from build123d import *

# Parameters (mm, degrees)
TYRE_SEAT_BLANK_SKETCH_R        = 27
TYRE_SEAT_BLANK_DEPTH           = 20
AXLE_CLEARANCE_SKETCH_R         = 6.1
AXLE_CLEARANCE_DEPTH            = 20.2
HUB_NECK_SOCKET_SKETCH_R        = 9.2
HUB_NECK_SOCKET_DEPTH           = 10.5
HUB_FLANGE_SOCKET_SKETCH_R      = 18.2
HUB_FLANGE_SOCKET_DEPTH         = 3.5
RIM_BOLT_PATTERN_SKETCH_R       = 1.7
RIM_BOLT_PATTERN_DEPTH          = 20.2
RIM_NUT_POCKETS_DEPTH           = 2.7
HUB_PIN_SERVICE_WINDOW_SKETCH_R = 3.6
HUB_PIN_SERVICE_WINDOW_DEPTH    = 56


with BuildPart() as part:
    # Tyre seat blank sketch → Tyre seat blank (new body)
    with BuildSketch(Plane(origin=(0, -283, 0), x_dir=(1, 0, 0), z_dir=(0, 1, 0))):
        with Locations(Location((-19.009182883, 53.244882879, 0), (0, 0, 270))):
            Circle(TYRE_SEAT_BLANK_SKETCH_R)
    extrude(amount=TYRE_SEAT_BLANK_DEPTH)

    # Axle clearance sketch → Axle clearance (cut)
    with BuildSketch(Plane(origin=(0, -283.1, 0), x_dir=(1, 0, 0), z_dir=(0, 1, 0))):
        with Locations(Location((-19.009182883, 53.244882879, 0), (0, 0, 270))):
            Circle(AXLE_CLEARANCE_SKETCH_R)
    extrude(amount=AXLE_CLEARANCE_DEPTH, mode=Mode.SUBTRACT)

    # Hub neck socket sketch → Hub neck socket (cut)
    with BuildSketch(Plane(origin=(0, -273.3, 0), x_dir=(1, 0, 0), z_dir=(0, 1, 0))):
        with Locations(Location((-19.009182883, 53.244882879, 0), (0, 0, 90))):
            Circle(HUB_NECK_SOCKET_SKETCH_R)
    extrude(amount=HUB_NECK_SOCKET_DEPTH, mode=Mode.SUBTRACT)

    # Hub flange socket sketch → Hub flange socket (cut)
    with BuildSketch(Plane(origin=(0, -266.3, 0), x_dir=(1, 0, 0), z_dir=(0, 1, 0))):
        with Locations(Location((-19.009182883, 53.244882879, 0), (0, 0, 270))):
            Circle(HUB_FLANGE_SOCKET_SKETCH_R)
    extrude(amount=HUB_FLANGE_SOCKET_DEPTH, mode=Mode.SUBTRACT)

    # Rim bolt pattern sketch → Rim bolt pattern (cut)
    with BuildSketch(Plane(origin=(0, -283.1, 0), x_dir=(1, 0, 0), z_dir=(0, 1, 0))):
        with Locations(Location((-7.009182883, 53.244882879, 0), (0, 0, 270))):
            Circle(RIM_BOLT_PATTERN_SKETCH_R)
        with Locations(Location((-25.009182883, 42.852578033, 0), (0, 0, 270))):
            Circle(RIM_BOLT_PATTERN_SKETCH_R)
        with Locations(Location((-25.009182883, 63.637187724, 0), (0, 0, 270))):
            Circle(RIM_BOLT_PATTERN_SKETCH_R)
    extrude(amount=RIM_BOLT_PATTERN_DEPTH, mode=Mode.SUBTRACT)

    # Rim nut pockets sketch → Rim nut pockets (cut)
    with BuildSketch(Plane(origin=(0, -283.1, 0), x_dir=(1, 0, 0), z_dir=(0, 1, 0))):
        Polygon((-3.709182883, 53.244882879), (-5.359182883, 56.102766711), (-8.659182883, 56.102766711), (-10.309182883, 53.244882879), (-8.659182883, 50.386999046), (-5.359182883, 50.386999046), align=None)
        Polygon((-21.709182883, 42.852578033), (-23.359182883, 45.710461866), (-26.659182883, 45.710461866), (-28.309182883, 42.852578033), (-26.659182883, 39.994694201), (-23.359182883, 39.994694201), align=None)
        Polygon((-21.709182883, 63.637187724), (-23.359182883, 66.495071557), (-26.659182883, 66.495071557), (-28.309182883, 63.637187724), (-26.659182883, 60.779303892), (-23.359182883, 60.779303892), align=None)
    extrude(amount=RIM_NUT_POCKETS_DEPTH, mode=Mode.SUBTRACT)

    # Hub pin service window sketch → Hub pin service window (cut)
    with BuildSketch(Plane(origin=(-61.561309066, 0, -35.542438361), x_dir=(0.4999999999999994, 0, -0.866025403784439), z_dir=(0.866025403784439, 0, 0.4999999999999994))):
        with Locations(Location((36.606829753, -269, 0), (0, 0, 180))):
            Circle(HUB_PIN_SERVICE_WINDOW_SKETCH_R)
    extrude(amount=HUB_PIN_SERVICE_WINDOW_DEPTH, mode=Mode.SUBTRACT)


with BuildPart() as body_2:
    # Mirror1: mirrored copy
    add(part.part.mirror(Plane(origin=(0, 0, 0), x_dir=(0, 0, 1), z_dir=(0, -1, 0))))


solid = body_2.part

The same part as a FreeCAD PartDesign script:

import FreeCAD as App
import Part
import Sketcher
Q = App.Units.Quantity

doc = App.newDocument("Part")
body = doc.addObject("PartDesign::Body", "Body")

# Sketch on XZ plane
sketch1 = body.newObject("Sketcher::SketchObject", "Sketch")
sketch1.AttachmentSupport = (doc.getObject("XZ_Plane"), [""])
sketch1.MapMode = "FlatFace"
sketch1.AttachmentOffset = App.Placement(App.Vector(0, 0, 283), App.Rotation())
sketch1.addGeometry(Part.Circle(App.Vector(-19.009183, -53.244883, 0), App.Vector(0, 0, 1), 27), False)
sketch1.addConstraint([
    Sketcher.Constraint("Diameter", 0, Q("54 mm")),
    Sketcher.Constraint("DistanceX", 0, 3, -1, 1, Q("19.009183 mm")),
    Sketcher.Constraint("DistanceY", 0, 3, -1, 1, Q("53.244883 mm")),
])
pad1 = body.newObject("PartDesign::Pad", "Pad")
pad1.Profile = sketch1
pad1.Length = 20
pad1.Reversed = True

# Sketch on XZ plane
sketch2 = body.newObject("Sketcher::SketchObject", "Sketch001")
sketch2.AttachmentSupport = (doc.getObject("XZ_Plane"), [""])
sketch2.MapMode = "FlatFace"
sketch2.AttachmentOffset = App.Placement(App.Vector(0, 0, 283.1), App.Rotation())
sketch2.addGeometry(Part.Circle(App.Vector(-19.009183, -53.244883, 0), App.Vector(0, 0, 1), 6.1), False)
sketch2.addConstraint([
    Sketcher.Constraint("Diameter", 0, Q("12.2 mm")),
    Sketcher.Constraint("DistanceX", 0, 3, -1, 1, Q("19.009183 mm")),
    Sketcher.Constraint("DistanceY", 0, 3, -1, 1, Q("53.244883 mm")),
])
pocket1 = body.newObject("PartDesign::Pocket", "Pocket")
pocket1.Profile = sketch2
pocket1.Length = 20.2

# Sketch on XZ plane
sketch3 = body.newObject("Sketcher::SketchObject", "Sketch002")
sketch3.AttachmentSupport = (doc.getObject("XZ_Plane"), [""])
sketch3.MapMode = "FlatFace"
sketch3.AttachmentOffset = App.Placement(App.Vector(0, 0, 273.3), App.Rotation())
sketch3.addGeometry(Part.Circle(App.Vector(-19.009183, -53.244883, 0), App.Vector(0, 0, 1), 9.2), False)
sketch3.addConstraint([
    Sketcher.Constraint("Diameter", 0, Q("18.4 mm")),
    Sketcher.Constraint("DistanceX", 0, 3, -1, 1, Q("19.009183 mm")),
    Sketcher.Constraint("DistanceY", 0, 3, -1, 1, Q("53.244883 mm")),
])
pocket2 = body.newObject("PartDesign::Pocket", "Pocket001")
pocket2.Profile = sketch3
pocket2.Length = 10.5

# Sketch on XZ plane
sketch4 = body.newObject("Sketcher::SketchObject", "Sketch003")
sketch4.AttachmentSupport = (doc.getObject("XZ_Plane"), [""])
sketch4.MapMode = "FlatFace"
sketch4.AttachmentOffset = App.Placement(App.Vector(0, 0, 266.3), App.Rotation())
sketch4.addGeometry(Part.Circle(App.Vector(-19.009183, -53.244883, 0), App.Vector(0, 0, 1), 18.2), False)
sketch4.addConstraint([
    Sketcher.Constraint("Diameter", 0, Q("36.4 mm")),
    Sketcher.Constraint("DistanceX", 0, 3, -1, 1, Q("19.009183 mm")),
    Sketcher.Constraint("DistanceY", 0, 3, -1, 1, Q("53.244883 mm")),
])
pocket3 = body.newObject("PartDesign::Pocket", "Pocket002")
pocket3.Profile = sketch4
pocket3.Length = 3.5

# Sketch on XZ plane
sketch5 = body.newObject("Sketcher::SketchObject", "Sketch004")
sketch5.AttachmentSupport = (doc.getObject("XZ_Plane"), [""])
sketch5.MapMode = "FlatFace"
sketch5.AttachmentOffset = App.Placement(App.Vector(0, 0, 283.1), App.Rotation())
sketch5.addGeometry([
    Part.Circle(App.Vector(-7.009183, -53.244883, 0), App.Vector(0, 0, 1), 1.7),
    Part.Circle(App.Vector(-25.009183, -42.852578, 0), App.Vector(0, 0, 1), 1.7),
    Part.Circle(App.Vector(-25.009183, -63.637188, 0), App.Vector(0, 0, 1), 1.7),
], False)
sketch5.addConstraint([
    Sketcher.Constraint("Equal", 0, 1),
    Sketcher.Constraint("Equal", 1, 2),
    Sketcher.Constraint("Vertical", 1, 3, 2, 3),
    Sketcher.Constraint("Diameter", 0, Q("3.4 mm")),
    Sketcher.Constraint("DistanceX", 1, 3, 0, 3, Q("18 mm")),
    Sketcher.Constraint("DistanceY", 1, 3, -1, 1, Q("42.852578 mm")),
    Sketcher.Constraint("DistanceY", 2, 3, 1, 3, Q("20.78461 mm")),
    Sketcher.Constraint("DistanceX", 0, 3, -1, 1, Q("7.009183 mm")),
    Sketcher.Constraint("DistanceY", 0, 3, -1, 1, Q("53.244883 mm")),
])
pocket4 = body.newObject("PartDesign::Pocket", "Pocket003")
pocket4.Profile = sketch5
pocket4.Length = 20.2

# Sketch on XZ plane
sketch6 = body.newObject("Sketcher::SketchObject", "Sketch005")
sketch6.AttachmentSupport = (doc.getObject("XZ_Plane"), [""])
sketch6.MapMode = "FlatFace"
sketch6.AttachmentOffset = App.Placement(App.Vector(0, 0, 283.1), App.Rotation())
sketch6.addGeometry([
    Part.LineSegment(App.Vector(-3.709183, -53.244883, 0), App.Vector(-5.359183, -56.102767, 0)),  # 0
    Part.LineSegment(App.Vector(-5.359183, -56.102767, 0), App.Vector(-8.659183, -56.102767, 0)),  # 1
    Part.LineSegment(App.Vector(-8.659183, -56.102767, 0), App.Vector(-10.309183, -53.244883, 0)),  # 2
    Part.LineSegment(App.Vector(-10.309183, -53.244883, 0), App.Vector(-8.659183, -50.386999, 0)),  # 3
    Part.LineSegment(App.Vector(-8.659183, -50.386999, 0), App.Vector(-5.359183, -50.386999, 0)),  # 4
    Part.LineSegment(App.Vector(-5.359183, -50.386999, 0), App.Vector(-3.709183, -53.244883, 0)),  # 5
    Part.LineSegment(App.Vector(-21.709183, -42.852578, 0), App.Vector(-23.359183, -45.710462, 0)),  # 6
    Part.LineSegment(App.Vector(-23.359183, -45.710462, 0), App.Vector(-26.659183, -45.710462, 0)),  # 7
    Part.LineSegment(App.Vector(-26.659183, -45.710462, 0), App.Vector(-28.309183, -42.852578, 0)),  # 8
    Part.LineSegment(App.Vector(-28.309183, -42.852578, 0), App.Vector(-26.659183, -39.994694, 0)),  # 9
    Part.LineSegment(App.Vector(-26.659183, -39.994694, 0), App.Vector(-23.359183, -39.994694, 0)),  # 10
    Part.LineSegment(App.Vector(-23.359183, -39.994694, 0), App.Vector(-21.709183, -42.852578, 0)),  # 11
    Part.LineSegment(App.Vector(-21.709183, -63.637188, 0), App.Vector(-23.359183, -66.495072, 0)),  # 12
    Part.LineSegment(App.Vector(-23.359183, -66.495072, 0), App.Vector(-26.659183, -66.495072, 0)),  # 13
    Part.LineSegment(App.Vector(-26.659183, -66.495072, 0), App.Vector(-28.309183, -63.637188, 0)),  # 14
    Part.LineSegment(App.Vector(-28.309183, -63.637188, 0), App.Vector(-26.659183, -60.779304, 0)),  # 15
    Part.LineSegment(App.Vector(-26.659183, -60.779304, 0), App.Vector(-23.359183, -60.779304, 0)),  # 16
    Part.LineSegment(App.Vector(-23.359183, -60.779304, 0), App.Vector(-21.709183, -63.637188, 0)),  # 17
], False)
sketch6.addConstraint([
    Sketcher.Constraint("Coincident", 0, 2, 1, 1),
    Sketcher.Constraint("Coincident", 1, 2, 2, 1),
    Sketcher.Constraint("Coincident", 2, 2, 3, 1),
    Sketcher.Constraint("Coincident", 3, 2, 4, 1),
    Sketcher.Constraint("Coincident", 4, 2, 5, 1),
    Sketcher.Constraint("Coincident", 5, 2, 0, 1),
    Sketcher.Constraint("Coincident", 6, 2, 7, 1),
    Sketcher.Constraint("Coincident", 7, 2, 8, 1),
    Sketcher.Constraint("Coincident", 8, 2, 9, 1),
    Sketcher.Constraint("Coincident", 9, 2, 10, 1),
    Sketcher.Constraint("Coincident", 10, 2, 11, 1),
    Sketcher.Constraint("Coincident", 11, 2, 6, 1),
    Sketcher.Constraint("Coincident", 12, 2, 13, 1),
    Sketcher.Constraint("Coincident", 13, 2, 14, 1),
    Sketcher.Constraint("Coincident", 14, 2, 15, 1),
    Sketcher.Constraint("Coincident", 15, 2, 16, 1),
    Sketcher.Constraint("Coincident", 16, 2, 17, 1),
    Sketcher.Constraint("Coincident", 17, 2, 12, 1),
    Sketcher.Constraint("Horizontal", 1),
    Sketcher.Constraint("Horizontal", 4),
    Sketcher.Constraint("Horizontal", 7),
    Sketcher.Constraint("Horizontal", 10),
    Sketcher.Constraint("Horizontal", 13),
    Sketcher.Constraint("Horizontal", 16),
    Sketcher.Constraint("Parallel", 0, 3),
    Sketcher.Constraint("Parallel", 2, 5),
    Sketcher.Constraint("Parallel", 3, 6),
    Sketcher.Constraint("Parallel", 5, 8),
    Sketcher.Constraint("Parallel", 6, 9),
    Sketcher.Constraint("Parallel", 8, 11),
    Sketcher.Constraint("Parallel", 9, 12),
    Sketcher.Constraint("Parallel", 11, 14),
    Sketcher.Constraint("Parallel", 12, 15),
    Sketcher.Constraint("Parallel", 14, 17),
    Sketcher.Constraint("Horizontal", 2, 2, 5, 2),
    Sketcher.Constraint("Horizontal", 8, 2, 11, 2),
    Sketcher.Constraint("Horizontal", 14, 2, 17, 2),
    Sketcher.Constraint("Vertical", 1, 2, 3, 2),
    Sketcher.Constraint("Vertical", 0, 2, 4, 2),
    Sketcher.Constraint("Vertical", 7, 2, 9, 2),
    Sketcher.Constraint("Vertical", 10, 2, 12, 2),
    Sketcher.Constraint("Vertical", 9, 2, 13, 2),
    Sketcher.Constraint("Vertical", 8, 2, 14, 2),
    Sketcher.Constraint("Vertical", 13, 2, 15, 2),
    Sketcher.Constraint("Equal", 4, 7),
    Sketcher.Constraint("Equal", 5, 6),
    Sketcher.Constraint("Angle", 0, Q("-120 deg")),
    Sketcher.Constraint("DistanceX", 1, 2, 1, 1, Q("3.3 mm")),
    Sketcher.Constraint("DistanceX", 6, 2, 4, 2, Q("18 mm")),
    Sketcher.Constraint("Distance", 0, Q("3.3 mm")),
    Sketcher.Constraint("DistanceY", 3, 2, -1, 1, Q("50.386999 mm")),
    Sketcher.Constraint("DistanceY", 6, 2, -1, 1, Q("45.710462 mm")),
    Sketcher.Constraint("DistanceY", 12, 2, -1, 1, Q("66.495072 mm")),
    Sketcher.Constraint("DistanceX", 0, 2, -1, 1, Q("5.359183 mm")),
])
pocket5 = body.newObject("PartDesign::Pocket", "Pocket004")
pocket5.Profile = sketch6
pocket5.Length = 2.7

# Sketch on an angled plane
sketch7 = body.newObject("Sketcher::SketchObject", "Sketch006")
sketch7.Placement = App.Placement(App.Vector(-61.561309, 0, -35.542438), App.Rotation(App.Vector(0.5, 0, -0.866025404), App.Vector(0, 1, 0), App.Vector(0.866025404, 0, 0.5), "ZXY"))
sketch7.addGeometry(Part.Circle(App.Vector(36.60683, -269, 0), App.Vector(0, 0, 1), 3.6), False)
sketch7.addConstraint([
    Sketcher.Constraint("Diameter", 0, Q("7.2 mm")),
    Sketcher.Constraint("DistanceY", 0, 3, -1, 1, Q("269 mm")),
    Sketcher.Constraint("DistanceX", -1, 1, 0, 3, Q("36.60683 mm")),
])
pocket6 = body.newObject("PartDesign::Pocket", "Pocket005")
pocket6.Profile = sketch7
pocket6.Length = 56
pocket6.Reversed = True
body2 = doc.addObject("PartDesign::Body", "Body001")
doc.recompute()

mirroring = doc.addObject("Part::Mirroring", "Mirroring")
mirroring.Source = body
mirroring.Base = App.Vector(0, 0, 0)
mirroring.Normal = App.Vector(0, -1, 0)
body2.BaseFeature = mirroring
doc.recompute()
body.Visibility = False
mirroring.Visibility = False

doc.recompute()
